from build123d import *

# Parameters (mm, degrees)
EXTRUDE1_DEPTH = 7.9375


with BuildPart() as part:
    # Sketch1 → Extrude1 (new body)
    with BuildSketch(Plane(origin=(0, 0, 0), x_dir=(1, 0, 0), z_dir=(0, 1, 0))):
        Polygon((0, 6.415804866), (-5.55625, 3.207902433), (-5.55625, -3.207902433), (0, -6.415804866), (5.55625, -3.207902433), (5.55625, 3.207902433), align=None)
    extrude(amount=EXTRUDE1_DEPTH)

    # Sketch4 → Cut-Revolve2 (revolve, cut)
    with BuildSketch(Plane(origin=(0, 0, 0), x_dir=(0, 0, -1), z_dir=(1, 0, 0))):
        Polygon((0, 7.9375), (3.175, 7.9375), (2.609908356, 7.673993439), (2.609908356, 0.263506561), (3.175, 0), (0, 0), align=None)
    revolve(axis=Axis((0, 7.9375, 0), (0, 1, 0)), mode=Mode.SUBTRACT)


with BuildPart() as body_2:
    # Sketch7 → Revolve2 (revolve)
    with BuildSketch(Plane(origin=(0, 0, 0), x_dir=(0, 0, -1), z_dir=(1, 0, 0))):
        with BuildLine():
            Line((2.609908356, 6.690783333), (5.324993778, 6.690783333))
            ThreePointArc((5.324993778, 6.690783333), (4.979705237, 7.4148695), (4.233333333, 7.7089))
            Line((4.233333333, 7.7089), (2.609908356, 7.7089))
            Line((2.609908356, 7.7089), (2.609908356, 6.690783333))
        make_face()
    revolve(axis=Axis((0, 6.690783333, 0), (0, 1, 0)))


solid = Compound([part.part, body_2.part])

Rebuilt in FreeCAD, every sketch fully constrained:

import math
import FreeCAD as App
import Part
import Sketcher
Q = App.Units.Quantity

doc = App.newDocument("Part")
body = doc.addObject("PartDesign::Body", "Body")

# Sketch on XZ plane
sketch1 = body.newObject("Sketcher::SketchObject", "Sketch")
sketch1.AttachmentSupport = (doc.getObject("XZ_Plane"), [""])
sketch1.MapMode = "FlatFace"
sketch1.addGeometry([
    Part.LineSegment(App.Vector(0, -6, 0), App.Vector(-6, -3, 0)),  # 0
    Part.LineSegment(App.Vector(-6, -3, 0), App.Vector(-6, 3, 0)),  # 1
    Part.LineSegment(App.Vector(-6, 3, 0), App.Vector(0, 6, 0)),  # 2
    Part.LineSegment(App.Vector(0, 6, 0), App.Vector(6, 3, 0)),  # 3
    Part.LineSegment(App.Vector(6, 3, 0), App.Vector(6, -3, 0)),  # 4
    Part.LineSegment(App.Vector(6, -3, 0), App.Vector(0, -6, 0)),  # 5
], False)
sketch1.addConstraint([
    Sketcher.Constraint("Coincident", 0, 2, 1, 1),
    Sketcher.Constraint("Coincident", 1, 2, 2, 1),
    Sketcher.Constraint("Coincident", 2, 2, 3, 1),
    Sketcher.Constraint("Coincident", 3, 2, 4, 1),
    Sketcher.Constraint("Coincident", 4, 2, 5, 1),
    Sketcher.Constraint("Coincident", 5, 2, 0, 1),
    Sketcher.Constraint("Vertical", 1),
    Sketcher.Constraint("Vertical", 4),
    Sketcher.Constraint("Symmetric", 0, 2, 3, 2, -1, 1),
    Sketcher.Constraint("Symmetric", 2, 2, 5, 2, -1, 1),
    Sketcher.Constraint("PointOnObject", 2, 2, -2),
    Sketcher.Constraint("Parallel", 2, 5),
    Sketcher.Constraint("Horizontal", 1, 2, 3, 2),
    Sketcher.Constraint("Angle", 0, Q("150 deg")),
    Sketcher.Constraint("DistanceX", 0, 2, -1, 1, Q("0.21875 in")),
    Sketcher.Constraint("DistanceY", 1, 1, 1, 2, Q("6.415805 mm")),
])
pad1 = body.newObject("PartDesign::Pad", "Pad")
pad1.Profile = sketch1
pad1.Length = Q("0.3125 in")
pad1.Reversed = True

# Sketch on YZ plane
sketch2 = body.newObject("Sketcher::SketchObject", "Sketch001")
sketch2.AttachmentSupport = (doc.getObject("YZ_Plane"), [""])
sketch2.MapMode = "FlatFace"
sketch2.addGeometry([
    Part.LineSegment(App.Vector(7.9, -3.2, 0), App.Vector(7.9, 0, 0)),  # 0
    Part.LineSegment(App.Vector(7.9, 0, 0), App.Vector(0, 0, 0)),  # 1
    Part.LineSegment(App.Vector(0, 0, 0), App.Vector(0, -3.2, 0)),  # 2
    Part.LineSegment(App.Vector(0, -3.2, 0), App.Vector(0.3, -2.6, 0)),  # 3
    Part.LineSegment(App.Vector(0.3, -2.6, 0), App.Vector(7.7, -2.6, 0)),  # 4
    Part.LineSegment(App.Vector(7.7, -2.6, 0), App.Vector(7.9, -3.2, 0)),  # 5
], False)
sketch2.addConstraint([
    Sketcher.Constraint("Coincident", 0, 2, 1, 1),
    Sketcher.Constraint("Coincident", 1, 2, 2, 1),
    Sketcher.Constraint("Coincident", 2, 2, 3, 1),
    Sketcher.Constraint("Coincident", 3, 2, 4, 1),
    Sketcher.Constraint("Coincident", 4, 2, 5, 1),
    Sketcher.Constraint("Coincident", 5, 2, 0, 1),
    Sketcher.Constraint("Vertical", 0),
    Sketcher.Constraint("Horizontal", 1),
    Sketcher.Constraint("Vertical", 2),
    Sketcher.Constraint("Horizontal", 4),
    Sketcher.Constraint("Coincident", 1, 2, -1, 1),
    Sketcher.Constraint("Horizontal", 2, 2, 5, 2),
    Sketcher.Constraint("Equal", 3, 5),
    Sketcher.Constraint("Angle", 3, Q("65 deg")),
    Sketcher.Constraint("DistanceX", 1, 2, 1, 1, Q("0.3125 in")),
    Sketcher.Constraint("DistanceY", 0, 1, 0, 2, Q("0.125 in")),
    Sketcher.Constraint("Distance", 3, Q("0.62351 mm")),
])
groove = body.newObject("PartDesign::Groove", "Groove")
groove.Profile = sketch2
groove.ReferenceAxis = (sketch2, ["H_Axis"])
groove.Angle = 360
body2 = doc.addObject("PartDesign::Body", "Body001")

# Sketch on YZ plane
sketch3 = body2.newObject("Sketcher::SketchObject", "Sketch002")
sketch3.AttachmentSupport = (doc.getObject("YZ_Plane001"), [""])
sketch3.MapMode = "FlatFace"
sketch3.addGeometry([
    Part.LineSegment(App.Vector(6.7, -2.6, 0), App.Vector(6.7, -5.3, 0)),
    Part.ArcOfCircle(Part.Circle(App.Vector(6.6, -4.2, 0), App.Vector(0, 0, 1), 1.1), math.radians(-86), math.radians(0)),
    Part.LineSegment(App.Vector(7.7, -4.2, 0), App.Vector(7.7, -2.6, 0)),
    Part.LineSegment(App.Vector(7.7, -2.6, 0), App.Vector(6.7, -2.6, 0)),
], False)
sketch3.addConstraint([
    Sketcher.Constraint("Coincident", 0, 2, 1, 1),
    Sketcher.Constraint("Tangent", 1, 2, 2, 1),
    Sketcher.Constraint("Coincident", 2, 2, 3, 1),
    Sketcher.Constraint("Coincident", 3, 2, 0, 1),
    Sketcher.Constraint("Vertical", 0),
    Sketcher.Constraint("Vertical", 2),
    Sketcher.Constraint("Horizontal", 3),
    Sketcher.Constraint("DistanceX", 1, 3, 0, 2, Q("0.003 in")),
    Sketcher.Constraint("DistanceX", -1, 1, 1, 2, Q("0.3035 in")),
    Sketcher.Constraint("Radius", 1, Q("1.094317 mm")),
    Sketcher.Constraint("DistanceY", 0, 2, 0, 1, Q("2.715085 mm")),
    Sketcher.Constraint("DistanceY", 2, 2, -1, 1, Q("2.609908 mm")),
])
revolution = body2.newObject("PartDesign::Revolution", "Revolution")
revolution.Profile = sketch3
revolution.ReferenceAxis = (sketch3, ["H_Axis"])
revolution.Angle = 360

doc.recompute()
